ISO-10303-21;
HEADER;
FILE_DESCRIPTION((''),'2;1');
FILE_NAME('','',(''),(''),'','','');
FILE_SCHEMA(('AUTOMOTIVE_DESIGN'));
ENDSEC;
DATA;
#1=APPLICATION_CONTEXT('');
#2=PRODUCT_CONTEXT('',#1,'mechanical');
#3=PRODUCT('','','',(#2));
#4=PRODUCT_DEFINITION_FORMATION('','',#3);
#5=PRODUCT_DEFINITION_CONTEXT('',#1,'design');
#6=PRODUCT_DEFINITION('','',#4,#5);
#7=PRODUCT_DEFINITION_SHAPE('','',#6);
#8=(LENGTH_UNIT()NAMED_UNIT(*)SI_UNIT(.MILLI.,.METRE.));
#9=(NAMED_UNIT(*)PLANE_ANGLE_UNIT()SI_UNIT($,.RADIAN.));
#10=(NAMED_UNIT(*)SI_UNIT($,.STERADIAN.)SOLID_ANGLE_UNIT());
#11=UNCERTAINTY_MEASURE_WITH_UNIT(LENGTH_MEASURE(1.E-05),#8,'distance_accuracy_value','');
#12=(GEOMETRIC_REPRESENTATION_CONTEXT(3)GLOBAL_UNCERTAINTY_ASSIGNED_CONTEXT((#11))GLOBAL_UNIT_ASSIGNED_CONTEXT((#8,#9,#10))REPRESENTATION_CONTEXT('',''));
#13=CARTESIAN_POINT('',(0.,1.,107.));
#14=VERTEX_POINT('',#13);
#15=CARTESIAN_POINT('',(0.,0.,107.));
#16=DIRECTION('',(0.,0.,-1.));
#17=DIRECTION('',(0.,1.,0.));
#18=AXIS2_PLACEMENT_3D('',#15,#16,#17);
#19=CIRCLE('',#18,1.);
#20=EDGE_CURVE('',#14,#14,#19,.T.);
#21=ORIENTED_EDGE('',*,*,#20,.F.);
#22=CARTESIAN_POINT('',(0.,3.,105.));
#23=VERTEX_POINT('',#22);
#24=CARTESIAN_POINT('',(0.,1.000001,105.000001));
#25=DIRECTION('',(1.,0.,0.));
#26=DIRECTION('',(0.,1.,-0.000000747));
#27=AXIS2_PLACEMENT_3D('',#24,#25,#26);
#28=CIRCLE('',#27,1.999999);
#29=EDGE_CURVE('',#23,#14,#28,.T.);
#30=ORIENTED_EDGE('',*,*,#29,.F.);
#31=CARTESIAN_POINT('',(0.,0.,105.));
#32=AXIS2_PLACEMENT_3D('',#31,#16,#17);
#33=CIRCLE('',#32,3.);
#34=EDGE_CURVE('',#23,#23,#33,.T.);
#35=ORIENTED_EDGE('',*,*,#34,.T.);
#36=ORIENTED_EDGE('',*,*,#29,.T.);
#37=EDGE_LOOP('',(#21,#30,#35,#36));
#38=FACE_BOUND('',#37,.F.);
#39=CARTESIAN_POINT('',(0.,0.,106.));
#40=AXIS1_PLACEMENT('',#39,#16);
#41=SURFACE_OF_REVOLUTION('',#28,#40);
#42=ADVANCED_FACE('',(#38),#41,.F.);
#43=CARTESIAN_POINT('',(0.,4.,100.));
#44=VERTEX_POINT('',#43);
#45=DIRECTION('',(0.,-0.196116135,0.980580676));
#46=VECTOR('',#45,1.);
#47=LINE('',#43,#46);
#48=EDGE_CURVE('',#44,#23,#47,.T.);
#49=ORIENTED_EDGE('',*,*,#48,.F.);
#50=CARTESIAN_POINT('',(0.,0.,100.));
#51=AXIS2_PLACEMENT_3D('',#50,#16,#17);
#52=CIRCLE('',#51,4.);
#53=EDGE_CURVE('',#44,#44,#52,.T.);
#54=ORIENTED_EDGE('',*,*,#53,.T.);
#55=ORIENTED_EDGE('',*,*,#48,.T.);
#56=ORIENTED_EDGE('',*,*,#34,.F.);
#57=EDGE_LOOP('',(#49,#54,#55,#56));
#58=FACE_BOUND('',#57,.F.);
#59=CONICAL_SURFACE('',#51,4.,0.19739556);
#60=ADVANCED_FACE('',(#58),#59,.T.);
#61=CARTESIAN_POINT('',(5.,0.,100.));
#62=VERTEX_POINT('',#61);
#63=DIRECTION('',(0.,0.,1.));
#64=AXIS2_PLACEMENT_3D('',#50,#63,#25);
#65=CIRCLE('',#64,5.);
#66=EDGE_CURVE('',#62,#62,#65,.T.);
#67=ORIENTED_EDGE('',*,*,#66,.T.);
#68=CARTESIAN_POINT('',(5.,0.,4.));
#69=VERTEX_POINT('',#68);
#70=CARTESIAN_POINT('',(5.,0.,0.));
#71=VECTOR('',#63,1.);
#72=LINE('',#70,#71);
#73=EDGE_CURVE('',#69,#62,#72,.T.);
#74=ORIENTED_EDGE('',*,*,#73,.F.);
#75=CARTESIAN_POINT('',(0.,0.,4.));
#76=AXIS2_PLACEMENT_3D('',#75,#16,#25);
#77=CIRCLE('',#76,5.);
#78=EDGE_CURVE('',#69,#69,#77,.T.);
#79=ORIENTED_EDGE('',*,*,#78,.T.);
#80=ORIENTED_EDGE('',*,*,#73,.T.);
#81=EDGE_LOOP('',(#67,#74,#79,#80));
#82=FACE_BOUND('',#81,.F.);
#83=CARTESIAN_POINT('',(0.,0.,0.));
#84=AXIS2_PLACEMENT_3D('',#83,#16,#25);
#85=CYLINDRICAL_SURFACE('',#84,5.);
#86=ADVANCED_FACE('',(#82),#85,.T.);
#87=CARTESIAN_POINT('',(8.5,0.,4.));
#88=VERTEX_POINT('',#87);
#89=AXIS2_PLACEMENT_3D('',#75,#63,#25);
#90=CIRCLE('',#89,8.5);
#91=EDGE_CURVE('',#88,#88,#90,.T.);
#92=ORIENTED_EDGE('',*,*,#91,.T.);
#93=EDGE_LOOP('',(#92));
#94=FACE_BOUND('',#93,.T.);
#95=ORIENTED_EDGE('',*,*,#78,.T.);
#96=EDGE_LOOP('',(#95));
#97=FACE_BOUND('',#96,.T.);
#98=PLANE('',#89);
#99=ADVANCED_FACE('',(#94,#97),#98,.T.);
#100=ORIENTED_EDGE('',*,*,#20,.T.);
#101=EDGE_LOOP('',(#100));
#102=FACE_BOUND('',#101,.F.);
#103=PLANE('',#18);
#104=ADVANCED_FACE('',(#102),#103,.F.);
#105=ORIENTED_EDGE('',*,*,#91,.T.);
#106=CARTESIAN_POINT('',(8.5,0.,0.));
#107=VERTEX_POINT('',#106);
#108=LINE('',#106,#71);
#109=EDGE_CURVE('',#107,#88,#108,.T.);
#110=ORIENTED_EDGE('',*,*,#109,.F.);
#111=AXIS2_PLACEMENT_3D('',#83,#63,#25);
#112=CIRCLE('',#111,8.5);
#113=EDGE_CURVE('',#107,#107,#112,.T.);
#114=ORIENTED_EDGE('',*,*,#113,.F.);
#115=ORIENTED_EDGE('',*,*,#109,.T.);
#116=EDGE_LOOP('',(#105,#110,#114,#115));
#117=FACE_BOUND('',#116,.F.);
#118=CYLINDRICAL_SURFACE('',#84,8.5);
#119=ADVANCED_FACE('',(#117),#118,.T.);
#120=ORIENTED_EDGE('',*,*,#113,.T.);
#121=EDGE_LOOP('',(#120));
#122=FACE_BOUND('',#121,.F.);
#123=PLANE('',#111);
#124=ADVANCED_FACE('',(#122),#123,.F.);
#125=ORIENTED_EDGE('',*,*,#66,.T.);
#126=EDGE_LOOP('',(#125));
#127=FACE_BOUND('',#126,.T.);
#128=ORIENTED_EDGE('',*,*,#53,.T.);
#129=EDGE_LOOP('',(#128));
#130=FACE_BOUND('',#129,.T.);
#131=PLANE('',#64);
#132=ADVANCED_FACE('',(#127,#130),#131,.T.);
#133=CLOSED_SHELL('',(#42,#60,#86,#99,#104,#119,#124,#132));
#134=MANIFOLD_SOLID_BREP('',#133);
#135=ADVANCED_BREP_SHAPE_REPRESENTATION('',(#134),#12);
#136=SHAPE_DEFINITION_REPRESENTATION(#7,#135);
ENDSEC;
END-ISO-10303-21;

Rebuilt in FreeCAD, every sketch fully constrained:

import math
import FreeCAD as App
import Part
import Sketcher
Q = App.Units.Quantity

doc = App.newDocument("Part")
body = doc.addObject("PartDesign::Body", "Body")

# Sketch on XY plane
sketch1 = body.newObject("Sketcher::SketchObject", "Sketch")
sketch1.AttachmentSupport = (doc.getObject("XY_Plane"), [""])
sketch1.MapMode = "FlatFace"
sketch1.addGeometry(Part.Circle(App.Vector(0, 0, 0), App.Vector(0, 0, 1), 8), False)
sketch1.addConstraint([
    Sketcher.Constraint("Coincident", 0, 3, -1, 1),
    Sketcher.Constraint("Diameter", 0, Q("17 mm")),
])
pad1 = body.newObject("PartDesign::Pad", "Pad")
pad1.Profile = sketch1
pad1.Length = 4

# Sketch on XY plane
sketch2 = body.newObject("Sketcher::SketchObject", "Sketch001")
sketch2.AttachmentSupport = (doc.getObject("XY_Plane"), [""])
sketch2.MapMode = "FlatFace"
sketch2.addGeometry(Part.Circle(App.Vector(0, 0, 0), App.Vector(0, 0, 1), 5), False)
sketch2.addConstraint([
    Sketcher.Constraint("Coincident", 0, 3, -1, 1),
    Sketcher.Constraint("Diameter", 0, Q("10 mm")),
])
pad2 = body.newObject("PartDesign::Pad", "Pad001")
pad2.Profile = sketch2
pad2.Length = 100

# Sketch on YZ plane
sketch3 = body.newObject("Sketcher::SketchObject", "Sketch002")
sketch3.AttachmentSupport = (doc.getObject("YZ_Plane"), [""])
sketch3.MapMode = "FlatFace"
sketch3.addGeometry([
    Part.LineSegment(App.Vector(3, 105, 0), App.Vector(0, 105, 0)),
    Part.LineSegment(App.Vector(0, 105, 0), App.Vector(0, 100, 0)),
    Part.LineSegment(App.Vector(0, 100, 0), App.Vector(4, 100, 0)),
    Part.LineSegment(App.Vector(4, 100, 0), App.Vector(3, 105, 0)),
], False)
sketch3.addConstraint([
    Sketcher.Constraint("Coincident", 0, 2, 1, 1),
    Sketcher.Constraint("Coincident", 1, 2, 2, 1),
    Sketcher.Constraint("Coincident", 2, 2, 3, 1),
    Sketcher.Constraint("Coincident", 3, 2, 0, 1),
    Sketcher.Constraint("Horizontal", 0),
    Sketcher.Constraint("Vertical", 1),
    Sketcher.Constraint("Horizontal", 2),
    Sketcher.Constraint("PointOnObject", 0, 2, -2),
    Sketcher.Constraint("DistanceX", 0, 2, 0, 1, Q("3 mm")),
    Sketcher.Constraint("DistanceX", 2, 1, 2, 2, Q("4 mm")),
    Sketcher.Constraint("DistanceY", 1, 2, 1, 1, Q("5 mm")),
    Sketcher.Constraint("DistanceY", -1, 1, 0, 2, Q("105 mm")),
])
revolution = body.newObject("PartDesign::Revolution", "Revolution")
revolution.Profile = sketch3
revolution.ReferenceAxis = (sketch3, ["V_Axis"])
revolution.Angle = 360

# Sketch on YZ plane
sketch4 = body.newObject("Sketcher::SketchObject", "Sketch003")
sketch4.AttachmentSupport = (doc.getObject("YZ_Plane"), [""])
sketch4.MapMode = "FlatFace"
sketch4.addGeometry([
    Part.LineSegment(App.Vector(1, 107, 0), App.Vector(0, 107, 0)),
    Part.LineSegment(App.Vector(0, 107, 0), App.Vector(0, 105, 0)),
    Part.LineSegment(App.Vector(0, 105, 0), App.Vector(3, 105, 0)),
    Part.ArcOfCircle(Part.Circle(App.Vector(1, 105, 0), App.Vector(0, 0, 1), 2), math.radians(0), math.radians(90)),
], False)
sketch4.addConstraint([
    Sketcher.Constraint("Coincident", 0, 2, 1, 1),
    Sketcher.Constraint("Coincident", 1, 2, 2, 1),
    Sketcher.Constraint("Coincident", 2, 2, 3, 1),
    Sketcher.Constraint("Tangent", 3, 2, 0, 1),
    Sketcher.Constraint("Horizontal", 0),
    Sketcher.Constraint("Vertical", 1),
    Sketcher.Constraint("Horizontal", 2),
    Sketcher.Constraint("PointOnObject", 0, 2, -2),
    Sketcher.Constraint("Horizontal", 3, 3, 1, 2),
    Sketcher.Constraint("Radius", 3, Q("1.999999 mm")),
    Sketcher.Constraint("DistanceX", 0, 2, 0, 1, Q("1 mm")),
    Sketcher.Constraint("DistanceY", -1, 1, 3, 3, Q("105.000001 mm")),
])
revolution2 = body.newObject("PartDesign::Revolution", "Revolution001")
revolution2.Profile = sketch4
revolution2.ReferenceAxis = (sketch4, ["V_Axis"])
revolution2.Angle = 360

doc.recompute()
